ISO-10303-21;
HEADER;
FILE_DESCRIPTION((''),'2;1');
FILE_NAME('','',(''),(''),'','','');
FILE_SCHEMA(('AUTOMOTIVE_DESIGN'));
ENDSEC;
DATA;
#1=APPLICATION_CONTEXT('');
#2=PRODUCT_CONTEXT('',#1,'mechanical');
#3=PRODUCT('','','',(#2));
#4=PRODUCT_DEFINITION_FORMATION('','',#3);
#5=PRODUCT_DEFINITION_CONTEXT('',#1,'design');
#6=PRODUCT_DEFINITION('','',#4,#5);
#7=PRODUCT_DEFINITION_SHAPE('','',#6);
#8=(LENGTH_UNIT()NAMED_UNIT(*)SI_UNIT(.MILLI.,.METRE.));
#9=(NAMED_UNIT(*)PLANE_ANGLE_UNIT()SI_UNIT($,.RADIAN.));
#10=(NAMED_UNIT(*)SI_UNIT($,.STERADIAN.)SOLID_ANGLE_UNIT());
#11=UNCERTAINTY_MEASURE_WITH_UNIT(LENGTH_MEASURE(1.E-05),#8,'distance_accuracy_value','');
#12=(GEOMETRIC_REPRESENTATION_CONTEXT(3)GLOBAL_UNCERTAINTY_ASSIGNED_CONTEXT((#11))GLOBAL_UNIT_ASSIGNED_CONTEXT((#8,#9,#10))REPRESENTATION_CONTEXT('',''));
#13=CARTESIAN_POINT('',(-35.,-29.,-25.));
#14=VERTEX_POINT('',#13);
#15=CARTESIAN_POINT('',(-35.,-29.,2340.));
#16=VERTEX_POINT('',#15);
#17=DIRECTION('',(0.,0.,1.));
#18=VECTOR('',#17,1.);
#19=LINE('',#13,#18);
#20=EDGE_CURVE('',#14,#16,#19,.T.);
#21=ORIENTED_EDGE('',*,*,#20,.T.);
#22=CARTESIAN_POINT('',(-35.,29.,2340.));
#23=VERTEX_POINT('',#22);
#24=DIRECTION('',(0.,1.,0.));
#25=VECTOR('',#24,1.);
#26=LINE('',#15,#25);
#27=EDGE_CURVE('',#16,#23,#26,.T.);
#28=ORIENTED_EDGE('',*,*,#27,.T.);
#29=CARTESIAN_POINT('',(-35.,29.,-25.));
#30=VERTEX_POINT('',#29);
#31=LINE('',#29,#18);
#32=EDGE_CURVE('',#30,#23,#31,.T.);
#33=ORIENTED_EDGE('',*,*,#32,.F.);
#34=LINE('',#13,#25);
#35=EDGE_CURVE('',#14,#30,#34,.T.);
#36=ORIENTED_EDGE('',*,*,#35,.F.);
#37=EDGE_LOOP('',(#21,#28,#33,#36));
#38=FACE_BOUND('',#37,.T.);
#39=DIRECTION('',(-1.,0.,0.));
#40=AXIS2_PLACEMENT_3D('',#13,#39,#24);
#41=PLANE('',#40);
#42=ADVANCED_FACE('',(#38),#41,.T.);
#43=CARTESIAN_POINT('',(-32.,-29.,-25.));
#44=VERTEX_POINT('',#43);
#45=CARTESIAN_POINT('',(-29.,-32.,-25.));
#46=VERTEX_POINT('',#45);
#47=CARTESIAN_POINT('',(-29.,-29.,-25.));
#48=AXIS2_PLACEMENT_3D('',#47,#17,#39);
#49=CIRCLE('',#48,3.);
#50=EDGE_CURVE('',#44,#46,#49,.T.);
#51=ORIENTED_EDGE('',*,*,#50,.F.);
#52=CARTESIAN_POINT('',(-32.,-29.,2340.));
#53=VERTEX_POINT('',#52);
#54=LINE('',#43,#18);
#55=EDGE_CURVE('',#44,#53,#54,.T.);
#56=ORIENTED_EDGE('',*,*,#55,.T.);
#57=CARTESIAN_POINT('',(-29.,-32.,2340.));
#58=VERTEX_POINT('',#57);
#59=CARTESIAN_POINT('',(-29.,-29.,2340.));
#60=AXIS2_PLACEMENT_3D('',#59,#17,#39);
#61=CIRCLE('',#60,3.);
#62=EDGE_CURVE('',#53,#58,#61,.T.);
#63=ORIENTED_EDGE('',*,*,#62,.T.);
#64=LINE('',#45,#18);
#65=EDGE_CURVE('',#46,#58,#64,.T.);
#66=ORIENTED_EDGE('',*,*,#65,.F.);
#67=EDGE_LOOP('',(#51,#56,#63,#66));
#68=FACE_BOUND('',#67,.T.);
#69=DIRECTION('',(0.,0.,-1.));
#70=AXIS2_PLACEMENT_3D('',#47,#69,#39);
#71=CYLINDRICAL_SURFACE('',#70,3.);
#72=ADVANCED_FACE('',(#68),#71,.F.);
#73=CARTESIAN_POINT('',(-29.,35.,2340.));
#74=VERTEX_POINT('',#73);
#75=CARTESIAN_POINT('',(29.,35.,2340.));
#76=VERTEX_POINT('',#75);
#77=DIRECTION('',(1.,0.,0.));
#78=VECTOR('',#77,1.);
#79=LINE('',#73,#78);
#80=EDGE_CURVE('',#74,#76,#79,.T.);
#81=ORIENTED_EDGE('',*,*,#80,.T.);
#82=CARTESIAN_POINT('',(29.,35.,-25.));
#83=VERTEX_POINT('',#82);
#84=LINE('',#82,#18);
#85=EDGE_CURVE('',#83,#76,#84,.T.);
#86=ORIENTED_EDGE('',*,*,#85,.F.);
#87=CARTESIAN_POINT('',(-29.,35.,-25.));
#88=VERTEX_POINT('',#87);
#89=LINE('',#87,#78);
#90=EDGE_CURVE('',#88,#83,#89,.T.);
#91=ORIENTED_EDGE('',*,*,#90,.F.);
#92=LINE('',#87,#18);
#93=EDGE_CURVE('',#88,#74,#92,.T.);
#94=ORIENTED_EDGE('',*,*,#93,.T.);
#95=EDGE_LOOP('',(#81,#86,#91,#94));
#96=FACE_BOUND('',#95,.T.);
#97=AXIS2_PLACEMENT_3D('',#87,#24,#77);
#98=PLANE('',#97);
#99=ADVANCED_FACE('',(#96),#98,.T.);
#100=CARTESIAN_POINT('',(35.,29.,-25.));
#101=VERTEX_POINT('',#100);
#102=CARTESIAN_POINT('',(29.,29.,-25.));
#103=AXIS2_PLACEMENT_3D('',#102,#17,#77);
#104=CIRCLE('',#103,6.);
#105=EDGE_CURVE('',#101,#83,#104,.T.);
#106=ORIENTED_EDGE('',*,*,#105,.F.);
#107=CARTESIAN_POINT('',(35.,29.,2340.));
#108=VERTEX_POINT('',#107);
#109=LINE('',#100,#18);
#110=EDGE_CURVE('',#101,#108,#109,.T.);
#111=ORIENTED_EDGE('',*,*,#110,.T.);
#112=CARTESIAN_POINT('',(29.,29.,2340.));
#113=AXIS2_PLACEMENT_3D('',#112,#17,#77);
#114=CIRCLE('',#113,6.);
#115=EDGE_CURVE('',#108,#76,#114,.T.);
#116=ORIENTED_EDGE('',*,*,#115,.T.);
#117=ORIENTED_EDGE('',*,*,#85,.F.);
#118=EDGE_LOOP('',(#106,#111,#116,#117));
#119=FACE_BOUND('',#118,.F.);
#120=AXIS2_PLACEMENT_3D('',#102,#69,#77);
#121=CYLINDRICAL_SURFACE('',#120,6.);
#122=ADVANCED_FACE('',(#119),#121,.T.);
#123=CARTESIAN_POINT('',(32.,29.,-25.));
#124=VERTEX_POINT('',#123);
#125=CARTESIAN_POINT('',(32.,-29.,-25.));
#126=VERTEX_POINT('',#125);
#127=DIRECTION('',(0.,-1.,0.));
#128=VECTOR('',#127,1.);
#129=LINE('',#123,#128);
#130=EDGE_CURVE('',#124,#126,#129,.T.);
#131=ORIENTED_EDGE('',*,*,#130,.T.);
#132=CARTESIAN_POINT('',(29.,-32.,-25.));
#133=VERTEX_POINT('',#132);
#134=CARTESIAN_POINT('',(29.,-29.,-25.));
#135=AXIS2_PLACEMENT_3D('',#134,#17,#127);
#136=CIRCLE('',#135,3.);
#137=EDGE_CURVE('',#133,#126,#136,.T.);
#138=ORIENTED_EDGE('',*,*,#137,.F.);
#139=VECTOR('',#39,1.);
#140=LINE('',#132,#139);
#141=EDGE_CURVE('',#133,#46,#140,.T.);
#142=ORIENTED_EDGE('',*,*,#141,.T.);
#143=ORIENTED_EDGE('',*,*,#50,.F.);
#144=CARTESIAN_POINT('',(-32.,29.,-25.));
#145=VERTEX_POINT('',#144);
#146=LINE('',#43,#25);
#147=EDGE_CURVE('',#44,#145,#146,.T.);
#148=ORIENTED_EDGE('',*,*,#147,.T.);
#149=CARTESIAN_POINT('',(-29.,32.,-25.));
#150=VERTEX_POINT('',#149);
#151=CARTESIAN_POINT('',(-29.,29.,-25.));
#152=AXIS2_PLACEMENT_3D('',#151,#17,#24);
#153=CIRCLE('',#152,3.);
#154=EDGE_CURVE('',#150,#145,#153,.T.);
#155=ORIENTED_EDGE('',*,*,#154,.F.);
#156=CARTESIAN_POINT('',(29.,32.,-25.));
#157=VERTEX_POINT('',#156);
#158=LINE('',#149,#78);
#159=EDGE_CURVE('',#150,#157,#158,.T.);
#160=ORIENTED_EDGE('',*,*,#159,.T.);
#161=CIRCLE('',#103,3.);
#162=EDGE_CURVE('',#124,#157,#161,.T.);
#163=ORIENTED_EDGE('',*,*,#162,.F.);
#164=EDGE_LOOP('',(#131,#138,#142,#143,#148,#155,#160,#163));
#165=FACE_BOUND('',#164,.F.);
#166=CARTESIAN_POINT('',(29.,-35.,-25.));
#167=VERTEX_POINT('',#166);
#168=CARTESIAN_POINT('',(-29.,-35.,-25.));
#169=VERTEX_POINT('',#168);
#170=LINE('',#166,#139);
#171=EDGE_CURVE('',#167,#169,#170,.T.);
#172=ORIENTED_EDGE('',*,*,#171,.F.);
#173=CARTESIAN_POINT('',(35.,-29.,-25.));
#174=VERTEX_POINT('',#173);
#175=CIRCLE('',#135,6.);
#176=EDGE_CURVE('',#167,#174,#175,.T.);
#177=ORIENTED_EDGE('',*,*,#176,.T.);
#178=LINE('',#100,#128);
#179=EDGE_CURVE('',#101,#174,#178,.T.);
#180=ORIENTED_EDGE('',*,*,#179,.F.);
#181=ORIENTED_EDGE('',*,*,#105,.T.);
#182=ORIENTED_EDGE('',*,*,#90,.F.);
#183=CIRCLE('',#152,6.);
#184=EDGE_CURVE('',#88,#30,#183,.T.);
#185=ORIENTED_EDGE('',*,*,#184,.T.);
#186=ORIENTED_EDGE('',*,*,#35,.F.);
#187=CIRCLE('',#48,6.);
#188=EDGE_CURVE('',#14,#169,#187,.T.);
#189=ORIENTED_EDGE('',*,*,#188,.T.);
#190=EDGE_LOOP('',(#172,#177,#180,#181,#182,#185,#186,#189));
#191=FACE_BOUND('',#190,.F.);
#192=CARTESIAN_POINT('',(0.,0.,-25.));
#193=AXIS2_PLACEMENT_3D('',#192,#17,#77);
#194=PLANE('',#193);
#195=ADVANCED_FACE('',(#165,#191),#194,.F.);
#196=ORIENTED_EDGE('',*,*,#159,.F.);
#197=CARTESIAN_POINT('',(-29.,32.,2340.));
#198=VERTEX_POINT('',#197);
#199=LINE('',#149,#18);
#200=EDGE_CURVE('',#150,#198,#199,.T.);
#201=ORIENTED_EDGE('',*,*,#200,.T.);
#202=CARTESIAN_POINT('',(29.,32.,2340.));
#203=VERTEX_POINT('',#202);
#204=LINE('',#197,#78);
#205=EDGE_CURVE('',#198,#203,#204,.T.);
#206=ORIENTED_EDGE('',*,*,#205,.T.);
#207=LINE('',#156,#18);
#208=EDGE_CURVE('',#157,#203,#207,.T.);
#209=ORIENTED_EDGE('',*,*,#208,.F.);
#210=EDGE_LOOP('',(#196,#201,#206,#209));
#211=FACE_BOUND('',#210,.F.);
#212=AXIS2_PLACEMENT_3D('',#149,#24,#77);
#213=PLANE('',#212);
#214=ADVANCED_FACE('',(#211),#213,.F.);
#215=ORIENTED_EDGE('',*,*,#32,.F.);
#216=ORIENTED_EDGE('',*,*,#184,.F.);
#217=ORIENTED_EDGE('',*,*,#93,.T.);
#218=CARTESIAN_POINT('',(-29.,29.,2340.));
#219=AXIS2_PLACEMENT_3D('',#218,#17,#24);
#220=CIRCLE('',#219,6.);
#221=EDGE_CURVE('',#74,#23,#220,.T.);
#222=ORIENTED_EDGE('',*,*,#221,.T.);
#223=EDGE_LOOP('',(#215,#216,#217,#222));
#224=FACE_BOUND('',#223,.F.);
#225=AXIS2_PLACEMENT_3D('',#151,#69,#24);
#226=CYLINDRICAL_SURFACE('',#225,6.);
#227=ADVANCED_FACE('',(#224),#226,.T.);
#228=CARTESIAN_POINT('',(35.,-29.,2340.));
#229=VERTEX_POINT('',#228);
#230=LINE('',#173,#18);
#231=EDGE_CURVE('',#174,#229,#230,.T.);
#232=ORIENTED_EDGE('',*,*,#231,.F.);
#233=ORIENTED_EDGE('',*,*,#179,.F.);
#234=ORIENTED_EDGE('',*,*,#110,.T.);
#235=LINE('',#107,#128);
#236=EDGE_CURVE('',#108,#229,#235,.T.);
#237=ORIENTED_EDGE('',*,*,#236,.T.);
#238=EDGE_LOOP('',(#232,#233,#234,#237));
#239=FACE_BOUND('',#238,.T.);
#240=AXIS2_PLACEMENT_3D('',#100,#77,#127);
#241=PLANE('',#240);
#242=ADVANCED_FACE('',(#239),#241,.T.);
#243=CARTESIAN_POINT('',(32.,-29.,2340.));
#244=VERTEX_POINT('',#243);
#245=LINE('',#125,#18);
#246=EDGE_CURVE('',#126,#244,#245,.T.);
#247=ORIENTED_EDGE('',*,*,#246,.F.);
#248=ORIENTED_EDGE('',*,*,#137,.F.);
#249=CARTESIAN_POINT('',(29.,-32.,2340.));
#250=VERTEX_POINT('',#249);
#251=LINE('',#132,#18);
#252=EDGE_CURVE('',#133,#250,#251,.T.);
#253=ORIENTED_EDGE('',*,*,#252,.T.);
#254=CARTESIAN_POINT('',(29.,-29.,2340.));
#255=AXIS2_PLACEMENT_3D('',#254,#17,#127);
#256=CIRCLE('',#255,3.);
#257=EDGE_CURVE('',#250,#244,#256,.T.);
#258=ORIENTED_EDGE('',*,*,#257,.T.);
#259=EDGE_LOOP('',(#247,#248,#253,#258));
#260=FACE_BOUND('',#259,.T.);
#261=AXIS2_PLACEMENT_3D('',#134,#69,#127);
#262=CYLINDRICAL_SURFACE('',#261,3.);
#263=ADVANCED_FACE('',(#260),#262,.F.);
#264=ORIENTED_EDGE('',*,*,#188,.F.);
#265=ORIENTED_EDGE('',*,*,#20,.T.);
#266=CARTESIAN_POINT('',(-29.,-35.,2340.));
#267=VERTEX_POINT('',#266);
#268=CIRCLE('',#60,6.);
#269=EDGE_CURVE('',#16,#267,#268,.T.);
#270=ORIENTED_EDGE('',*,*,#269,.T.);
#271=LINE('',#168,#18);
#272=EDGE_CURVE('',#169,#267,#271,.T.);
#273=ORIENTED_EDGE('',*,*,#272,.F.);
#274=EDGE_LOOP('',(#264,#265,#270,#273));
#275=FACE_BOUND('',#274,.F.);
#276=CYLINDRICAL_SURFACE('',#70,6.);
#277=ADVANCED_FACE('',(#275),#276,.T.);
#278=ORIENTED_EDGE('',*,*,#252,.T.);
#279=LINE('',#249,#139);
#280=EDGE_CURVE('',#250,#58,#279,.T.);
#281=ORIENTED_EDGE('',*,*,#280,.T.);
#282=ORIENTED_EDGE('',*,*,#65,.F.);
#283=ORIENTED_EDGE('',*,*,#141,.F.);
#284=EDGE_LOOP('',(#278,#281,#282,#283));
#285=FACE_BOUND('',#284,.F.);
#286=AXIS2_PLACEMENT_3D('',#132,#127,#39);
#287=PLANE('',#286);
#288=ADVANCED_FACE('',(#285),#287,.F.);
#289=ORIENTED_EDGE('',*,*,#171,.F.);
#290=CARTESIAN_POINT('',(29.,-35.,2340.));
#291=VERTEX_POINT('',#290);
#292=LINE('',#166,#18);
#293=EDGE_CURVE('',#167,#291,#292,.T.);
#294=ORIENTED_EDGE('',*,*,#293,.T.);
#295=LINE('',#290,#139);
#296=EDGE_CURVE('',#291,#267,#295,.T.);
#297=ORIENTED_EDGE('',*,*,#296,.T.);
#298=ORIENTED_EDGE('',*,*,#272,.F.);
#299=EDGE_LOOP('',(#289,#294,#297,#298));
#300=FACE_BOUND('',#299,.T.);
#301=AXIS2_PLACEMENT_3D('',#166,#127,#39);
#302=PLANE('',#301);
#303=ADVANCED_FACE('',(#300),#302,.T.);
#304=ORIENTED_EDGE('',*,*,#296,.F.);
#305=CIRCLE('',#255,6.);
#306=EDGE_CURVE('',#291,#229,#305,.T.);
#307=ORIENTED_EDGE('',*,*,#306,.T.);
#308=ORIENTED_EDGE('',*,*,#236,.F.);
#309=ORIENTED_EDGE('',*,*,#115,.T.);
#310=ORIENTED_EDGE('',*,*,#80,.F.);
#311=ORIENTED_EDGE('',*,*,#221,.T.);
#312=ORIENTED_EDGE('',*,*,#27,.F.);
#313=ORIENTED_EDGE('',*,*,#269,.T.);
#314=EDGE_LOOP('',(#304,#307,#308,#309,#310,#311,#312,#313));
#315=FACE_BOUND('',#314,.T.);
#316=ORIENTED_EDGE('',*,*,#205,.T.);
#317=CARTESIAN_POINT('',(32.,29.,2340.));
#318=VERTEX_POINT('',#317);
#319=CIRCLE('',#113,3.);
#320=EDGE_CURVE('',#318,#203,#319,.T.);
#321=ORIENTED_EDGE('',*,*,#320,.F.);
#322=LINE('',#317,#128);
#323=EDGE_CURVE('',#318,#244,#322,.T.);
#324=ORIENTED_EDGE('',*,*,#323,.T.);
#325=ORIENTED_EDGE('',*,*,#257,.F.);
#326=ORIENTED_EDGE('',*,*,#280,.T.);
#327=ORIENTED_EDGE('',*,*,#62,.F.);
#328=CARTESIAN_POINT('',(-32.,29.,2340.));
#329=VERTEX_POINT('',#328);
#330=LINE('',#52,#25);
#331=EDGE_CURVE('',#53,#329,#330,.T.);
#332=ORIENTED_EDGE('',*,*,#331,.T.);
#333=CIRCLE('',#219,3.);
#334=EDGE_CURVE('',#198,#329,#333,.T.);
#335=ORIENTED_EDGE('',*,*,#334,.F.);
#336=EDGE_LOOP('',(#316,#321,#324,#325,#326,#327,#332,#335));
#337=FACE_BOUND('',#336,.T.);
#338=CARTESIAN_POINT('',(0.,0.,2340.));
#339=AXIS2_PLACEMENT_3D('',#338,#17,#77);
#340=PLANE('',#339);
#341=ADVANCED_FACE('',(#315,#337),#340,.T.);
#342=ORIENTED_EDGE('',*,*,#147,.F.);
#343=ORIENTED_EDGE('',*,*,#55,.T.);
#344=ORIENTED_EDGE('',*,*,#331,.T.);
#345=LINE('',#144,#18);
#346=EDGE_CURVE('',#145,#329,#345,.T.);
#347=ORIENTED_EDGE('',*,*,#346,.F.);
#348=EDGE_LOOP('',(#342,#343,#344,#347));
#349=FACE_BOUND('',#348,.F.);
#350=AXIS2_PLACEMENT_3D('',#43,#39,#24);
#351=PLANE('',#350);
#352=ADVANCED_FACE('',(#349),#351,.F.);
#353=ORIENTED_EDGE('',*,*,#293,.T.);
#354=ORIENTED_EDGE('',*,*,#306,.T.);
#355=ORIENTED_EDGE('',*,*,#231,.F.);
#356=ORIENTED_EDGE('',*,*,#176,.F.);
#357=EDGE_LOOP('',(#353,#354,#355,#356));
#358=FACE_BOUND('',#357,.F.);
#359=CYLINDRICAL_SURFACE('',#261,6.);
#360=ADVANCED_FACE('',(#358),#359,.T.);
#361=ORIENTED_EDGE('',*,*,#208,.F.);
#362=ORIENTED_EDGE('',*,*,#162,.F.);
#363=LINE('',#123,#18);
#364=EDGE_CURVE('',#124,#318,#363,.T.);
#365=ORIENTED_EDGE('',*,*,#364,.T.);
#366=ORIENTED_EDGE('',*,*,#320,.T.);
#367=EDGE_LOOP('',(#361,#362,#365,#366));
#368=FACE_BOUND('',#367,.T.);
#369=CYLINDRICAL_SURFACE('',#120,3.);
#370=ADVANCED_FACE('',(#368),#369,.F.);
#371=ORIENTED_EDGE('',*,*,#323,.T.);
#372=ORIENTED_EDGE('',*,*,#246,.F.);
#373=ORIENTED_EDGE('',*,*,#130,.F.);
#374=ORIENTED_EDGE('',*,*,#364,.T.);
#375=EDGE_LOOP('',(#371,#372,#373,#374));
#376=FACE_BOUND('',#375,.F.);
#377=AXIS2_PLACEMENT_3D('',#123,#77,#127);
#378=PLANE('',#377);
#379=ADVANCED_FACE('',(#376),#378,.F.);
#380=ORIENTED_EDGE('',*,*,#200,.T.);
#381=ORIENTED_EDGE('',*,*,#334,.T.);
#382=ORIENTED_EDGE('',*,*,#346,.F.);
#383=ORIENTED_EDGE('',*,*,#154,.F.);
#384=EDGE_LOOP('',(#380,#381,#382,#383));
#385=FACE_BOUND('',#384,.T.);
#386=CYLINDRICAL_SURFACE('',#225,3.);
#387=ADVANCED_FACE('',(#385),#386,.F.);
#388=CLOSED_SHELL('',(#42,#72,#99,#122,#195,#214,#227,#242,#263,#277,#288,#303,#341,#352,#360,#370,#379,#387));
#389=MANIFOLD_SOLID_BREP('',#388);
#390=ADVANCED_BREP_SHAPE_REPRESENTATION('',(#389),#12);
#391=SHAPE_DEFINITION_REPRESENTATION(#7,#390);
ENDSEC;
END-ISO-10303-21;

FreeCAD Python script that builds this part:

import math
import FreeCAD as App
import Part
import Sketcher

V = App.Vector

doc = App.newDocument("Part")
body = doc.addObject("PartDesign::Body", "Body")

# Sketch on XY plane
sketch1 = body.newObject("Sketcher::SketchObject", "Sketch")
sketch1.AttachmentSupport = (doc.getObject("XY_Plane"), [""])
sketch1.MapMode = "FlatFace"
sketch1.AttachmentOffset = App.Placement(V(0, 0, -25), App.Rotation())
sketch1.addGeometry([
    Part.LineSegment(V(-35, 29, 0), V(-35, -29, 0)),  # 0
    Part.ArcOfCircle(Part.Circle(V(-29, -29, 0), V(0, 0, 1), 6), math.radians(180), math.radians(270)),  # 1
    Part.LineSegment(V(-29, -35, 0), V(29, -35, 0)),  # 2
    Part.ArcOfCircle(Part.Circle(V(29, -29, 0), V(0, 0, 1), 6), math.radians(-90), math.radians(0)),  # 3
    Part.LineSegment(V(35, -29, 0), V(35, 29, 0)),  # 4
    Part.ArcOfCircle(Part.Circle(V(29, 29, 0), V(0, 0, 1), 6), math.radians(0), math.radians(90)),  # 5
    Part.LineSegment(V(29, 35, 0), V(-29, 35, 0)),  # 6
    Part.ArcOfCircle(Part.Circle(V(-29, 29, 0), V(0, 0, 1), 6), math.radians(90), math.radians(180)),  # 7
    Part.ArcOfCircle(Part.Circle(V(-29, 29, 0), V(0, 0, 1), 3), math.radians(90), math.radians(180)),  # 8
    Part.LineSegment(V(-29, 32, 0), V(29, 32, 0)),  # 9
    Part.ArcOfCircle(Part.Circle(V(29, 29, 0), V(0, 0, 1), 3), math.radians(0), math.radians(90)),  # 10
    Part.LineSegment(V(32, 29, 0), V(32, -29, 0)),  # 11
    Part.ArcOfCircle(Part.Circle(V(29, -29, 0), V(0, 0, 1), 3), math.radians(-90), math.radians(0)),  # 12
    Part.LineSegment(V(29, -32, 0), V(-29, -32, 0)),  # 13
    Part.ArcOfCircle(Part.Circle(V(-29, -29, 0), V(0, 0, 1), 3), math.radians(180), math.radians(270)),  # 14
    Part.LineSegment(V(-32, -29, 0), V(-32, 29, 0)),  # 15
], False)
sketch1.addConstraint([
    Sketcher.Constraint("Tangent", 0, 2, 1, 1),
    Sketcher.Constraint("Tangent", 1, 2, 2, 1),
    Sketcher.Constraint("Tangent", 2, 2, 3, 1),
    Sketcher.Constraint("Tangent", 3, 2, 4, 1),
    Sketcher.Constraint("Tangent", 4, 2, 5, 1),
    Sketcher.Constraint("Tangent", 5, 2, 6, 1),
    Sketcher.Constraint("Tangent", 6, 2, 7, 1),
    Sketcher.Constraint("Tangent", 7, 2, 0, 1),
    Sketcher.Constraint("Tangent", 8, 1, 9, 1),
    Sketcher.Constraint("Tangent", 9, 2, 10, 2),
    Sketcher.Constraint("Tangent", 10, 1, 11, 1),
    Sketcher.Constraint("Tangent", 11, 2, 12, 2),
    Sketcher.Constraint("Tangent", 12, 1, 13, 1),
    Sketcher.Constraint("Tangent", 13, 2, 14, 2),
    Sketcher.Constraint("Tangent", 14, 1, 15, 1),
    Sketcher.Constraint("Tangent", 15, 2, 8, 2),
    Sketcher.Constraint("Vertical", 0),
    Sketcher.Constraint("Horizontal", 2),
    Sketcher.Constraint("Vertical", 4),
    Sketcher.Constraint("Horizontal", 6),
    Sketcher.Constraint("Horizontal", 9),
    Sketcher.Constraint("Vertical", 11),
    Sketcher.Constraint("Horizontal", 13),
    Sketcher.Constraint("Vertical", 15),
    Sketcher.Constraint("Coincident", 8, 3, 7, 3),
    Sketcher.Constraint("Coincident", 10, 3, 5, 3),
    Sketcher.Constraint("Coincident", 12, 3, 3, 3),
    Sketcher.Constraint("Equal", 1, 3),
    Sketcher.Constraint("Equal", 3, 5),
    Sketcher.Constraint("Equal", 5, 7),
    Sketcher.Constraint("Equal", 12, 14),
    Sketcher.Constraint("Symmetric", 1, 3, 5, 3, -1, 1),
    Sketcher.Constraint("Equal", 13, 0),
    Sketcher.Constraint("Radius", 1, 6.0),
    Sketcher.Constraint("Radius", 8, 3.0),
    Sketcher.Constraint("DistanceX", 0, 2, -1, 1, 35.0),
])
pad1 = body.newObject("PartDesign::Pad", "Pad")
pad1.Profile = sketch1
pad1.Length = 2365

doc.recompute()
